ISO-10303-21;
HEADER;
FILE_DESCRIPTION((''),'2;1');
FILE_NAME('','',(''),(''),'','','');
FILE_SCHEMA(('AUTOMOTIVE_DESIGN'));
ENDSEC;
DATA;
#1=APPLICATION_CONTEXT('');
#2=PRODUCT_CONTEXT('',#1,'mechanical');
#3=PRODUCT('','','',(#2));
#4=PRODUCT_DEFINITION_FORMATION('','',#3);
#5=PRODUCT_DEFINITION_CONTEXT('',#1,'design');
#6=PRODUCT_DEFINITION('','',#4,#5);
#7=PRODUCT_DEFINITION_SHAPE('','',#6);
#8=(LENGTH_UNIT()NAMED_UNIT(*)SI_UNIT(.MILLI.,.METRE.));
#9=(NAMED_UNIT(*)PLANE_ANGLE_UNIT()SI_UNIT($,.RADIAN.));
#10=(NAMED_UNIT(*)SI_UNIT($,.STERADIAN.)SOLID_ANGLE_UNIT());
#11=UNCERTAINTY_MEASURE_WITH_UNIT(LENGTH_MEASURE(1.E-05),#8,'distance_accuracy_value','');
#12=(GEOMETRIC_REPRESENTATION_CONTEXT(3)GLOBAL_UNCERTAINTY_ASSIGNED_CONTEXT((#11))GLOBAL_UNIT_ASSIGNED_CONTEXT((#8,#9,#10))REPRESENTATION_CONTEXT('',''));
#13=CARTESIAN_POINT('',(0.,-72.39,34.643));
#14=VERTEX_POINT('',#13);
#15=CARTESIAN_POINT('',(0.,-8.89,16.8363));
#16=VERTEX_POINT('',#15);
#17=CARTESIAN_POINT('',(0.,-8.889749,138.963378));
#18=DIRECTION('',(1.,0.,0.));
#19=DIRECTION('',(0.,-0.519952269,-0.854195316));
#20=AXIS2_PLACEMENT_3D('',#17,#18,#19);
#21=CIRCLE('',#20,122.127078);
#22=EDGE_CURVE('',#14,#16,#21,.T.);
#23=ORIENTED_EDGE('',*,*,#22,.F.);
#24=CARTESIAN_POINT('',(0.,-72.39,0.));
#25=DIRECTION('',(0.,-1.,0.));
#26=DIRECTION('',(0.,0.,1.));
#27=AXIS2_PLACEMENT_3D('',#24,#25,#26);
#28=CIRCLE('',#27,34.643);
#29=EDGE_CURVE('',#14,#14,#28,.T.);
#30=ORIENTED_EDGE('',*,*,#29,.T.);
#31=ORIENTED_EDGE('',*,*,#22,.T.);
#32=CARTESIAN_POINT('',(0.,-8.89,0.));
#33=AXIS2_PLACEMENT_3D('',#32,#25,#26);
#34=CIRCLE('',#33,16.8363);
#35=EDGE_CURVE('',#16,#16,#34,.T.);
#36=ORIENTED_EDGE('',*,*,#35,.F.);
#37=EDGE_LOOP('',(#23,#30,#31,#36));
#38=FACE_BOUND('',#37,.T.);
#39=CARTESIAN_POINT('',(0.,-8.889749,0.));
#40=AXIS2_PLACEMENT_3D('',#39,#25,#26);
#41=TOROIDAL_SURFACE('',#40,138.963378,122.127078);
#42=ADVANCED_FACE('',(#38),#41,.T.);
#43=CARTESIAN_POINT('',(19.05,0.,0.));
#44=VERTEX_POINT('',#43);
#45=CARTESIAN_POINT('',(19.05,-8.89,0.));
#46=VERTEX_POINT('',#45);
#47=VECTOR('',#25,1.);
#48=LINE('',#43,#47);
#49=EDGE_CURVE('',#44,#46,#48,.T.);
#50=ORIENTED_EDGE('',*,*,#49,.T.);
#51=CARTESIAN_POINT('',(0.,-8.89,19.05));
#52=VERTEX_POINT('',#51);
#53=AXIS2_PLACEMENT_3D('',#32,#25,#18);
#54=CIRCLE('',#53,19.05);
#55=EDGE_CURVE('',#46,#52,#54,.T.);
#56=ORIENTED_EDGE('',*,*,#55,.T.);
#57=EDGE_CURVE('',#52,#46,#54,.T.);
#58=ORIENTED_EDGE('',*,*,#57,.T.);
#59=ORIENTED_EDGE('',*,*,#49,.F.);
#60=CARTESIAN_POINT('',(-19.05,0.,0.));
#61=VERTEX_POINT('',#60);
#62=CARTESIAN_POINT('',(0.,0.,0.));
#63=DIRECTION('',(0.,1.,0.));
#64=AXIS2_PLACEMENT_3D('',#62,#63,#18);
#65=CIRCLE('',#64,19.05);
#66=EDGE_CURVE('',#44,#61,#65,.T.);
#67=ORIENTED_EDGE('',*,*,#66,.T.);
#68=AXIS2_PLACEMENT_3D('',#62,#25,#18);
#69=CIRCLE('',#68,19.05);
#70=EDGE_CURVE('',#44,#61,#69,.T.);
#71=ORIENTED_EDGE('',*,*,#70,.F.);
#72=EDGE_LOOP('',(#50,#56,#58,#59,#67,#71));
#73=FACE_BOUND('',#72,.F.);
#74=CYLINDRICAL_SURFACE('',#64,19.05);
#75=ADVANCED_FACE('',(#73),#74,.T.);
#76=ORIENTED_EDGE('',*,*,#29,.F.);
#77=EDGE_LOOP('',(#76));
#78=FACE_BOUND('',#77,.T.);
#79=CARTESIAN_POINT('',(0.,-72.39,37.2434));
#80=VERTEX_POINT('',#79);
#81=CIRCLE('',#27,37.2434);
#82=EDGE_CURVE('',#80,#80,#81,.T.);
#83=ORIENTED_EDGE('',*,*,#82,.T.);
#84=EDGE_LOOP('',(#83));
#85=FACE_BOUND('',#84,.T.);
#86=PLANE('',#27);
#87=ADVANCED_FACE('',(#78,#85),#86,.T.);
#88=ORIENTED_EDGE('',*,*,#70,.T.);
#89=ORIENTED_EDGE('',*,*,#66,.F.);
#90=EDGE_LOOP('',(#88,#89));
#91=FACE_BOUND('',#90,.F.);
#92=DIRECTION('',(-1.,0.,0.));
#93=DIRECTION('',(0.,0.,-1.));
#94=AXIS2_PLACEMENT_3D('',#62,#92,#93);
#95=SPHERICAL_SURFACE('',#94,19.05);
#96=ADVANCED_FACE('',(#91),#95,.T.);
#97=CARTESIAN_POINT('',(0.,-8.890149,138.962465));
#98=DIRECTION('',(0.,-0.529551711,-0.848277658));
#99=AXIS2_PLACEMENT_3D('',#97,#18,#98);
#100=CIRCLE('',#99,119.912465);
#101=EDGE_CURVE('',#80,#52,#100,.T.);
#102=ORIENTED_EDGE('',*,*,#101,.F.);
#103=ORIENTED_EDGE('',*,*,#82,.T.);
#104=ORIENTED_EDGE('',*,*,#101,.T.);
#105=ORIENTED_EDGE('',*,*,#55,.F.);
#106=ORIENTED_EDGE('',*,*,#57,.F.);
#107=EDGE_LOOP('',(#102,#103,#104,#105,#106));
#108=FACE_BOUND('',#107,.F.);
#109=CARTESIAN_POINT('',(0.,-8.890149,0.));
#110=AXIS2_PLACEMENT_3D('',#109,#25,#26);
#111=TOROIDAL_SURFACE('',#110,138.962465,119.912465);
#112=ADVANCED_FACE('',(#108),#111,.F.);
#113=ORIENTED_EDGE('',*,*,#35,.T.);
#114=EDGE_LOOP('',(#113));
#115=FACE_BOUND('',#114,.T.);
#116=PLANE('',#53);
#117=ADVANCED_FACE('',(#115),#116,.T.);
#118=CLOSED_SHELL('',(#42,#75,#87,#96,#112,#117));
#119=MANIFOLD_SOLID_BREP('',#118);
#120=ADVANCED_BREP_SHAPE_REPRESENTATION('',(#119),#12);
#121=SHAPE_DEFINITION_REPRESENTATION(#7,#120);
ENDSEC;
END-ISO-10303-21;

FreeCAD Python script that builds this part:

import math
import FreeCAD as App
import Part
import Sketcher
Q = App.Units.Quantity

doc = App.newDocument("Part")
body = doc.addObject("PartDesign::Body", "Body")

# Sketch on XZ plane
sketch1 = body.newObject("Sketcher::SketchObject", "Sketch")
sketch1.AttachmentSupport = (doc.getObject("XZ_Plane"), [""])
sketch1.MapMode = "FlatFace"
sketch1.addGeometry([
    Part.LineSegment(App.Vector(-19, 0, 0), App.Vector(19, 0, 0)),
    Part.ArcOfCircle(Part.Circle(App.Vector(0, 0, 0), App.Vector(0, 0, 1), 19), math.radians(180), math.radians(360)),
], False)
sketch1.addConstraint([
    Sketcher.Constraint("Coincident", 0, 1, 1, 1),
    Sketcher.Constraint("Coincident", 1, 2, 0, 2),
    Sketcher.Constraint("Horizontal", 0),
    Sketcher.Constraint("Coincident", 1, 3, -1, 1),
    Sketcher.Constraint("PointOnObject", 0, 1, -1),
    Sketcher.Constraint("Radius", 1, Q("0.75 in")),
])
revolution = body.newObject("PartDesign::Revolution", "Revolution")
revolution.Profile = sketch1
revolution.ReferenceAxis = (sketch1, ["H_Axis"])
revolution.Angle = 180

# Sketch on XZ plane
sketch2 = body.newObject("Sketcher::SketchObject", "Sketch001")
sketch2.AttachmentSupport = (doc.getObject("XZ_Plane"), [""])
sketch2.MapMode = "FlatFace"
sketch2.addGeometry(Part.Circle(App.Vector(0, 0, 0), App.Vector(0, 0, 1), 19), False)
sketch2.addConstraint([
    Sketcher.Constraint("Coincident", 0, 3, -1, 1),
    Sketcher.Constraint("Diameter", 0, Q("1.5 in")),
])
pad1 = body.newObject("PartDesign::Pad", "Pad")
pad1.Profile = sketch2
pad1.Length = Q("0.35 in")

# Sketch on YZ plane
sketch3 = body.newObject("Sketcher::SketchObject", "Sketch002")
sketch3.AttachmentSupport = (doc.getObject("YZ_Plane"), [""])
sketch3.MapMode = "FlatFace"
sketch3.addGeometry([
    Part.LineSegment(App.Vector(-8.9, 16.8, 0), App.Vector(-8.9, 19.1, 0)),
    Part.ArcOfCircle(Part.Circle(App.Vector(-8.9, 139, 0), App.Vector(0, 0, 1), 119.9), math.radians(-122), math.radians(-90)),
    Part.LineSegment(App.Vector(-72.4, 37.2, 0), App.Vector(-72.4, 34.6, 0)),
    Part.ArcOfCircle(Part.Circle(App.Vector(-8.9, 139, 0), App.Vector(0, 0, 1), 122.1), math.radians(-121), math.radians(-90)),
], False)
sketch3.addConstraint([
    Sketcher.Constraint("Coincident", 0, 2, 1, 2),
    Sketcher.Constraint("Coincident", 1, 1, 2, 1),
    Sketcher.Constraint("Coincident", 2, 2, 3, 1),
    Sketcher.Constraint("Coincident", 3, 2, 0, 1),
    Sketcher.Constraint("Vertical", 0),
    Sketcher.Constraint("Vertical", 2),
    Sketcher.Constraint("Coincident", 3, 3, 1, 3),
    Sketcher.Constraint("Vertical", 3, 3, 0, 2),
    Sketcher.Constraint("DistanceX", 1, 1, 0, 2, Q("2.5 in")),
    Sketcher.Constraint("DistanceX", 1, 3, -1, 1, Q("0.35 in")),
    Sketcher.Constraint("DistanceY", -1, 1, 0, 2, Q("0.75 in")),
    Sketcher.Constraint("Radius", 1, Q("119.9128 mm")),
    Sketcher.Constraint("Radius", 3, Q("122.1265 mm")),
])
revolution2 = body.newObject("PartDesign::Revolution", "Revolution001")
revolution2.Profile = sketch3
revolution2.ReferenceAxis = (sketch3, ["H_Axis"])
revolution2.Angle = 360

doc.recompute()
